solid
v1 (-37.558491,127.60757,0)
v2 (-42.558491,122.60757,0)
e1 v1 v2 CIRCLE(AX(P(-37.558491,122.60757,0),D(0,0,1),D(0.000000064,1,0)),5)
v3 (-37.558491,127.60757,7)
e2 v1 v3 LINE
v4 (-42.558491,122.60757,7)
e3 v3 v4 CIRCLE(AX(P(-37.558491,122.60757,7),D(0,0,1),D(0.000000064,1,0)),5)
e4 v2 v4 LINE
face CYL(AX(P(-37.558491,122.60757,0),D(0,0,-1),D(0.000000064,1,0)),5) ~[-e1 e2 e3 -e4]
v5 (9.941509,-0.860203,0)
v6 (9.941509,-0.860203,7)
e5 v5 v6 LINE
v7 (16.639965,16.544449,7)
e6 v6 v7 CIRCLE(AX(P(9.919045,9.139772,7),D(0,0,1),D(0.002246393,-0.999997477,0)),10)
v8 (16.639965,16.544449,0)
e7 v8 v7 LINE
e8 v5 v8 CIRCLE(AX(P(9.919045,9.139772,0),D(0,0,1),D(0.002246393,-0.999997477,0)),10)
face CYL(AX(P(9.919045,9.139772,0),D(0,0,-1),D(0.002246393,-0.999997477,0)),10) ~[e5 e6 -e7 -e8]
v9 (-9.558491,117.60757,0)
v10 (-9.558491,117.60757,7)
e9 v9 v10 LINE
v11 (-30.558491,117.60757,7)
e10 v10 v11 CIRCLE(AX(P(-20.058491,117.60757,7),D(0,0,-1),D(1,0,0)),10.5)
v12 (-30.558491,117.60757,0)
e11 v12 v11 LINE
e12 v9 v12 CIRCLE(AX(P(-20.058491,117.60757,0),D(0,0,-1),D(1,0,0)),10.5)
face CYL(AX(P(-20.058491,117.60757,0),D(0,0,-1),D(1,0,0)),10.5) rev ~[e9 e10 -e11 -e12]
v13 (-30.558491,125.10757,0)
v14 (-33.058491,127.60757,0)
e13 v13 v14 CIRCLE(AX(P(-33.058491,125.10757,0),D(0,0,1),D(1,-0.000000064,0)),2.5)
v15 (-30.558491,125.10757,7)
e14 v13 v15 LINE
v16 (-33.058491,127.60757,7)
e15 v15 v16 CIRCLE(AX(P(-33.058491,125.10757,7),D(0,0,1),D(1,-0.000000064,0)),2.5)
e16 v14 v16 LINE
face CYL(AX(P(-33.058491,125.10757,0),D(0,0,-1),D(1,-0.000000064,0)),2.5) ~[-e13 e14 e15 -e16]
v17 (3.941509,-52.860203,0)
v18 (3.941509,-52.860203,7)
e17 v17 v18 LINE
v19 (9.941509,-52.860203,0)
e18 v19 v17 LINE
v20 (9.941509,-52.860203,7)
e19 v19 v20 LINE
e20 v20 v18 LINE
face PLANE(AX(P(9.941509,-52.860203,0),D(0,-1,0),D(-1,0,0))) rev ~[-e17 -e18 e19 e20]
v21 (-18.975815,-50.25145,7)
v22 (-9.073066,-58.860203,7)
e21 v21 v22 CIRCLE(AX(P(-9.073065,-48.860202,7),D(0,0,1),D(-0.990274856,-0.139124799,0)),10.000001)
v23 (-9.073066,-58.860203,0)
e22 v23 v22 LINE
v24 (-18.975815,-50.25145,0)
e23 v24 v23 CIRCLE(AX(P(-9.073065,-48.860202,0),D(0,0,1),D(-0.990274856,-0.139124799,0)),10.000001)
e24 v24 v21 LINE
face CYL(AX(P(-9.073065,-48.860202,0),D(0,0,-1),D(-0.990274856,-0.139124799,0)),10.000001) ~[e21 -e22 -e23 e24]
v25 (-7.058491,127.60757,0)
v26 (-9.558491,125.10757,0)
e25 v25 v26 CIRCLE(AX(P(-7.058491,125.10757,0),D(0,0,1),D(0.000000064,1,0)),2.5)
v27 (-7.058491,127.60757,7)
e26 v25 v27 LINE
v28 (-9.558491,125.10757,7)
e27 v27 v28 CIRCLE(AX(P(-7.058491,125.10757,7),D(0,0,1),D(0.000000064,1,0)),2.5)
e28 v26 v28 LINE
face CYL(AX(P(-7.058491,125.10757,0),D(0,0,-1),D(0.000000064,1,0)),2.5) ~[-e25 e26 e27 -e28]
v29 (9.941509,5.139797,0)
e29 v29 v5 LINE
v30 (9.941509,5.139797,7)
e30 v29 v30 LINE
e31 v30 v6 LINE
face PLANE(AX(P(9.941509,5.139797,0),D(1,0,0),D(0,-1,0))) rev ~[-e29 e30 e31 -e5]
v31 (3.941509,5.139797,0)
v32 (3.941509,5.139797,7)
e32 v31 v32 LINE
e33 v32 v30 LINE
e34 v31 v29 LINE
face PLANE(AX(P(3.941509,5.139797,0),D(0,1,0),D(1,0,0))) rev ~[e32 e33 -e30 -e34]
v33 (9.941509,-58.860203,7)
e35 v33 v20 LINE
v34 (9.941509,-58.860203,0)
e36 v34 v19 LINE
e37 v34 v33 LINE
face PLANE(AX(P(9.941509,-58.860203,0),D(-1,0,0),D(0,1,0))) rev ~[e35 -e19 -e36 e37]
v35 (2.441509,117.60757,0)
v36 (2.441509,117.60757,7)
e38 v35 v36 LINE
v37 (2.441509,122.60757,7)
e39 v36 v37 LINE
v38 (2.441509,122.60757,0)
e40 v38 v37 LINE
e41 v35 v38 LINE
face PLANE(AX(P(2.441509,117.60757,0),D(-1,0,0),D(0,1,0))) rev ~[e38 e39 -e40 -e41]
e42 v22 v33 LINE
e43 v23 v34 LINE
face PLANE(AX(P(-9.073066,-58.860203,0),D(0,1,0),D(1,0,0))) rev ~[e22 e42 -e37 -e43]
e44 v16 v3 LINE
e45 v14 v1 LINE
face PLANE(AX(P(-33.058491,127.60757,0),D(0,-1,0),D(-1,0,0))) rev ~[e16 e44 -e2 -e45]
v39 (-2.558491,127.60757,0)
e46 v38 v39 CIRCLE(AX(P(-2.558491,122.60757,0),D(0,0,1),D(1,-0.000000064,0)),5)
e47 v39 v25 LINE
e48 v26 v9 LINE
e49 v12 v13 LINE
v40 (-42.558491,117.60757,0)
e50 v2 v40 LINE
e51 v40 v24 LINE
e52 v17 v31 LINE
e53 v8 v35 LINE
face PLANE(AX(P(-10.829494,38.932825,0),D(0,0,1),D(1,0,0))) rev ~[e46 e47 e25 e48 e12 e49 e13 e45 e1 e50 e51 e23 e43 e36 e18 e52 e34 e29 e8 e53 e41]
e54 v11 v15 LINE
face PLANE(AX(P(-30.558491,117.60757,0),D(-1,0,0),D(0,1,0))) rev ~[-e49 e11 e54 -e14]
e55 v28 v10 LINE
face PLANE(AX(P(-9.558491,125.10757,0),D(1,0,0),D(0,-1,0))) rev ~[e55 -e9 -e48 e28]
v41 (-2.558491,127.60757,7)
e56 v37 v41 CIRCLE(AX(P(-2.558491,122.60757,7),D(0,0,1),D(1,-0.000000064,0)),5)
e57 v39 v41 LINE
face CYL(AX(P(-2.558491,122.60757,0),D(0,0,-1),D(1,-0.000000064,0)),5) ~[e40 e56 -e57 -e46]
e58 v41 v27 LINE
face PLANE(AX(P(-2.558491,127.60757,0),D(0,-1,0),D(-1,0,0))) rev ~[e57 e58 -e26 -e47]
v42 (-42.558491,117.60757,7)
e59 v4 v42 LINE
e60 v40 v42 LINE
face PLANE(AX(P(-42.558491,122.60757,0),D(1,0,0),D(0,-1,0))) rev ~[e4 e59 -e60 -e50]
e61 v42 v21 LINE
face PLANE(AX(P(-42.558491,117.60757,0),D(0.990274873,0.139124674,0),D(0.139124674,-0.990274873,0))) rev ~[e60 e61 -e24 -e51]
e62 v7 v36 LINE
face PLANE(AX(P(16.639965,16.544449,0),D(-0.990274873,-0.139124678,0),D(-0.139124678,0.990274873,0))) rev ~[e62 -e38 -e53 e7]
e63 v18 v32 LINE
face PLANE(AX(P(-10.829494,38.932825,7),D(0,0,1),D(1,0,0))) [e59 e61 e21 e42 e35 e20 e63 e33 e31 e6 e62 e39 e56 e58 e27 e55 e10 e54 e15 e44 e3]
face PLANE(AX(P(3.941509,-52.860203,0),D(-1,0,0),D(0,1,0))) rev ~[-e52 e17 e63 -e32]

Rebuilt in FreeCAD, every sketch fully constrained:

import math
import FreeCAD as App
import Part
import Sketcher
from FreeCAD import Vector
Q = App.Units.Quantity

doc = App.newDocument("Part")
body = doc.addObject("PartDesign::Body", "Body")

sketch1 = doc.addObject("Sketcher::SketchObject", "Sketch")
body.addObject(sketch1)
sketch1.AttachmentSupport = (doc.XY_Plane, [""])
sketch1.MapMode = "FlatFace"
sketch1.addGeometry([
    Part.LineSegment(Vector(9.941509, 5.139797, 0), Vector(9.941509, -0.860203, 0)),
    Part.ArcOfCircle(Part.Circle(Vector(9.919045, 9.139772, 0), Vector(0, 0, 1), 10), math.radians(-89.871291), math.radians(47.77127)),
    Part.LineSegment(Vector(16.639965, 16.544449, 0), Vector(2.441509, 117.60757, 0)),
    Part.LineSegment(Vector(2.441509, 117.60757, 0), Vector(2.441509, 122.60757, 0)),
    Part.ArcOfCircle(Part.Circle(Vector(-2.558491, 122.60757, 0), Vector(0, 0, 1), 5), math.radians(-0.000004), math.radians(90.000004)),
    Part.LineSegment(Vector(-2.558491, 127.60757, 0), Vector(-7.058491, 127.60757, 0)),
    Part.ArcOfCircle(Part.Circle(Vector(-7.058491, 125.10757, 0), Vector(0, 0, 1), 2.5), math.radians(89.999996), math.radians(180.000004)),
    Part.LineSegment(Vector(-9.558491, 125.10757, 0), Vector(-9.558491, 117.60757, 0)),
    Part.ArcOfCircle(Part.Circle(Vector(-20.058491, 117.60757, 0), Vector(0, 0, 1), 10.5), math.radians(180), math.radians(360)),
    Part.LineSegment(Vector(-30.558491, 117.60757, 0), Vector(-30.558491, 125.10757, 0)),
    Part.ArcOfCircle(Part.Circle(Vector(-33.058491, 125.10757, 0), Vector(0, 0, 1), 2.5), math.radians(-0.000004), math.radians(90.000004)),
    Part.LineSegment(Vector(-33.058491, 127.60757, 0), Vector(-37.558491, 127.60757, 0)),
    Part.ArcOfCircle(Part.Circle(Vector(-37.558491, 122.60757, 0), Vector(0, 0, 1), 5), math.radians(89.999996), math.radians(180.000004)),
    Part.LineSegment(Vector(-42.558491, 122.60757, 0), Vector(-42.558491, 117.60757, 0)),
    Part.LineSegment(Vector(-42.558491, 117.60757, 0), Vector(-18.975815, -50.25145, 0)),
    Part.ArcOfCircle(Part.Circle(Vector(-9.073065, -48.860202, 0), Vector(0, 0, 1), 10.000001), math.radians(-172.002795), math.radians(-90.000004)),
    Part.LineSegment(Vector(-9.073066, -58.860203, 0), Vector(9.941509, -58.860203, 0)),
    Part.LineSegment(Vector(9.941509, -58.860203, 0), Vector(9.941509, -52.860203, 0)),
    Part.LineSegment(Vector(9.941509, -52.860203, 0), Vector(3.941509, -52.860203, 0)),
    Part.LineSegment(Vector(3.941509, -52.860203, 0), Vector(3.941509, 5.139797, 0)),
    Part.LineSegment(Vector(3.941509, 5.139797, 0), Vector(9.941509, 5.139797, 0)),
], False)
sketch1.addConstraint([
    Sketcher.Constraint("Coincident", 0, 2, 1, 1),
    Sketcher.Constraint("Coincident", 1, 2, 2, 1),
    Sketcher.Constraint("Coincident", 2, 2, 3, 1),
    Sketcher.Constraint("Tangent", 3, 2, 4, 1),
    Sketcher.Constraint("Tangent", 4, 2, 5, 1),
    Sketcher.Constraint("Tangent", 5, 2, 6, 1),
    Sketcher.Constraint("Tangent", 6, 2, 7, 1),
    Sketcher.Constraint("Tangent", 7, 2, 8, 2),
    Sketcher.Constraint("Tangent", 8, 1, 9, 1),
    Sketcher.Constraint("Tangent", 9, 2, 10, 1),
    Sketcher.Constraint("Tangent", 10, 2, 11, 1),
    Sketcher.Constraint("Tangent", 11, 2, 12, 1),
    Sketcher.Constraint("Tangent", 12, 2, 13, 1),
    Sketcher.Constraint("Coincident", 13, 2, 14, 1),
    Sketcher.Constraint("Tangent", 14, 2, 15, 1),
    Sketcher.Constraint("Tangent", 15, 2, 16, 1),
    Sketcher.Constraint("Coincident", 16, 2, 17, 1),
    Sketcher.Constraint("Coincident", 17, 2, 18, 1),
    Sketcher.Constraint("Coincident", 18, 2, 19, 1),
    Sketcher.Constraint("Coincident", 19, 2, 20, 1),
    Sketcher.Constraint("Coincident", 20, 2, 0, 1),
    Sketcher.Constraint("Vertical", 0),
    Sketcher.Constraint("Vertical", 3),
    Sketcher.Constraint("Horizontal", 5),
    Sketcher.Constraint("Vertical", 7),
    Sketcher.Constraint("Vertical", 9),
    Sketcher.Constraint("Horizontal", 11),
    Sketcher.Constraint("Vertical", 13),
    Sketcher.Constraint("Horizontal", 16),
    Sketcher.Constraint("Vertical", 17),
    Sketcher.Constraint("Horizontal", 18),
    Sketcher.Constraint("Vertical", 19),
    Sketcher.Constraint("Horizontal", 20),
    Sketcher.Constraint("Equal", 6, 10),
    Sketcher.Constraint("Equal", 4, 12),
    Sketcher.Constraint("Equal", 1, 15),
    Sketcher.Constraint("Parallel", 2, 14),
    Sketcher.Constraint("Horizontal", 6, 3, 10, 3),
    Sketcher.Constraint("Horizontal", 8, 3, 2, 2),
    Sketcher.Constraint("Horizontal", 8, 1, 13, 2),
    Sketcher.Constraint("Vertical", 0, 2, 16, 2),
    Sketcher.Constraint("Equal", 5, 11),
    Sketcher.Constraint("Equal", 20, 0),
    Sketcher.Constraint("Equal", 0, 17),
    Sketcher.Constraint("Radius", 1, Q("10 mm")),
    Sketcher.Constraint("Radius", 4, Q("5 mm")),
    Sketcher.Constraint("Radius", 6, Q("2.5 mm")),
    Sketcher.Constraint("Radius", 8, Q("10.5 mm")),
    Sketcher.Constraint("DistanceX", 18, 2, 18, 1, Q("6 mm")),
    Sketcher.Constraint("DistanceY", 3, 1, 3, 2, Q("5 mm")),
    Sketcher.Constraint("DistanceY", 19, 1, 19, 2, Q("58 mm")),
    Sketcher.Constraint("DistanceX", 5, 2, 5, 1, Q("4.5 mm")),
    Sketcher.Constraint("DistanceX", 8, 3, 0, 2, Q("30 mm")),
    Sketcher.Constraint("Distance", 14, Q("169.507502 mm")),
    Sketcher.Constraint("DistanceY", 15, 3, -1, 1, Q("48.860202 mm")),
    Sketcher.Constraint("DistanceY", 1, 3, 4, 3, Q("113.467798 mm")),
    Sketcher.Constraint("DistanceY", 14, 2, 1, 2, Q("66.795899 mm")),
    Sketcher.Constraint("DistanceX", 4, 3, -1, 1, Q("2.558491 mm")),
])
pad1 = doc.addObject("PartDesign::Pad", "Pad")
body.addObject(pad1)
pad1.Profile = sketch1
pad1.Length = 7

doc.recompute()
